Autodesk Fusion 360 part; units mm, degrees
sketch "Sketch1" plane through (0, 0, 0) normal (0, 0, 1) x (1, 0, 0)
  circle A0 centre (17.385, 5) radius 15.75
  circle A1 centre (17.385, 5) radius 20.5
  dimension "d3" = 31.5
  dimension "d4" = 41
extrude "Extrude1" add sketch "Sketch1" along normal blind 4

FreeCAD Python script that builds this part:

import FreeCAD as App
import Part
import Sketcher

V = App.Vector
Q = App.Units.Quantity

doc = App.newDocument("Part")
body = doc.addObject("PartDesign::Body", "Body")

# Sketch on XY plane
sketch1 = body.newObject("Sketcher::SketchObject", "Sketch")
sketch1.AttachmentSupport = (doc.getObject("XY_Plane"), [""])
sketch1.MapMode = "FlatFace"
sketch1.addGeometry([
    Part.Circle(V(17, 5, 0), V(0, 0, 1), 20),
    Part.Circle(V(17, 5, 0), V(0, 0, 1), 16),
], False)
sketch1.addConstraint([
    Sketcher.Constraint("Coincident", 1, 3, 0, 3),
    Sketcher.Constraint("Diameter", 0, Q("41 mm")),
    Sketcher.Constraint("Diameter", 1, Q("31.5 mm")),
    Sketcher.Constraint("DistanceY", -1, 1, 0, 3, Q("5 mm")),
    Sketcher.Constraint("DistanceX", -1, 1, 0, 3, Q("17.385 mm")),
])
pad1 = body.newObject("PartDesign::Pad", "Pad")
pad1.Profile = sketch1
pad1.Length = 4

doc.recompute()
